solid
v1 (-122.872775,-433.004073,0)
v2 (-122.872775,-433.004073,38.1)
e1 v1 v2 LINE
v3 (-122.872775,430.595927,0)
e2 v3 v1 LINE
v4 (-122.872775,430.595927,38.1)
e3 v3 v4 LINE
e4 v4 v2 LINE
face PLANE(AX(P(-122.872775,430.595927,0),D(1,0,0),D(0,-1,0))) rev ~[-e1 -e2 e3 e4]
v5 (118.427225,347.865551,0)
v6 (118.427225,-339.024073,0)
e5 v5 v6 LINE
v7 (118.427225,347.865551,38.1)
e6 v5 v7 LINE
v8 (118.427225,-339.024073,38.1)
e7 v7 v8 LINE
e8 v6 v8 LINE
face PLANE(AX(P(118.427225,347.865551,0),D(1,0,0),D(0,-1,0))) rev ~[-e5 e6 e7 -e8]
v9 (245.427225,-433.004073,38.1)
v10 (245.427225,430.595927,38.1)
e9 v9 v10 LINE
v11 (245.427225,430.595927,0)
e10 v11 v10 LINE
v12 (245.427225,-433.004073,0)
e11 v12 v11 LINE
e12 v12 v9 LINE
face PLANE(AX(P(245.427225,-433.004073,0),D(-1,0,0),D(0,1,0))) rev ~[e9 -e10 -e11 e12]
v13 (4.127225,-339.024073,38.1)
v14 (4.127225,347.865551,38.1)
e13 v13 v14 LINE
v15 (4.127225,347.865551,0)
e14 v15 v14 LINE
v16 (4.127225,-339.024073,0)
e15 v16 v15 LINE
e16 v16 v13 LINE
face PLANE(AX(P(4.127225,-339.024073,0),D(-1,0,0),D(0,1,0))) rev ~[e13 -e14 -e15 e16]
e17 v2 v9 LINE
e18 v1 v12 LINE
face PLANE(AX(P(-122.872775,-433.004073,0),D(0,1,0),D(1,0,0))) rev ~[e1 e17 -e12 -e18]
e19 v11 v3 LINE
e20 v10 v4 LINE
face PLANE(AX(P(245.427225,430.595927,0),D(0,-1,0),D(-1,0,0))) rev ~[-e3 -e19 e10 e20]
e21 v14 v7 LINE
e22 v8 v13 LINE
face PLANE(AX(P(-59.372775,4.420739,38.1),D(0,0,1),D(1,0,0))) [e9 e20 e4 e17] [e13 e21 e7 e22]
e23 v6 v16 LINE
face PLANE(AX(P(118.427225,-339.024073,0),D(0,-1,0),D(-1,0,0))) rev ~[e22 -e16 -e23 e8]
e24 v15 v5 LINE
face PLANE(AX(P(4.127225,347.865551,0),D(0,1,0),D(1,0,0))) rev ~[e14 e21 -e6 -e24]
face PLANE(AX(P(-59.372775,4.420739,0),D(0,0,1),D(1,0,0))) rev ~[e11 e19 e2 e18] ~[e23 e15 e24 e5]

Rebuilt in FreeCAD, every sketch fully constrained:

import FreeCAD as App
import Part
import Sketcher
from FreeCAD import Vector
Q = App.Units.Quantity

doc = App.newDocument("Part")
body = doc.addObject("PartDesign::Body", "Body")

sketch1 = body.newObject("Sketcher::SketchObject", "Sketch")
sketch1.AttachmentSupport = (doc.getObject("XY_Plane"), [""])
sketch1.MapMode = "FlatFace"
sketch1.addGeometry(Part.LineSegment(Vector(245.427225, 430.595927, 0), Vector(-122.872775, 430.595927, 0)), False)
sketch1.addGeometry(Part.LineSegment(Vector(-122.872775, 430.595927, 0), Vector(-122.872775, -433.004073, 0)), False)
sketch1.addGeometry(Part.LineSegment(Vector(-122.872775, -433.004073, 0), Vector(245.427225, -433.004073, 0)), False)
sketch1.addGeometry(Part.LineSegment(Vector(245.427225, -433.004073, 0), Vector(245.427225, 430.595927, 0)), False)
sketch1.addGeometry(Part.LineSegment(Vector(4.127225, -339.024073, 0), Vector(4.127225, 347.865551, 0)), False)
sketch1.addGeometry(Part.LineSegment(Vector(4.127225, 347.865551, 0), Vector(118.427225, 347.865551, 0)), False)
sketch1.addGeometry(Part.LineSegment(Vector(118.427225, 347.865551, 0), Vector(118.427225, -339.024073, 0)), False)
sketch1.addGeometry(Part.LineSegment(Vector(118.427225, -339.024073, 0), Vector(4.127225, -339.024073, 0)), False)
sketch1.addConstraint(Sketcher.Constraint("Coincident", 0, 2, 1, 1))
sketch1.addConstraint(Sketcher.Constraint("Coincident", 1, 2, 2, 1))
sketch1.addConstraint(Sketcher.Constraint("Coincident", 2, 2, 3, 1))
sketch1.addConstraint(Sketcher.Constraint("Coincident", 3, 2, 0, 1))
sketch1.addConstraint(Sketcher.Constraint("Coincident", 4, 2, 5, 1))
sketch1.addConstraint(Sketcher.Constraint("Coincident", 5, 2, 6, 1))
sketch1.addConstraint(Sketcher.Constraint("Coincident", 6, 2, 7, 1))
sketch1.addConstraint(Sketcher.Constraint("Coincident", 7, 2, 4, 1))
sketch1.addConstraint(Sketcher.Constraint("Horizontal", 0))
sketch1.addConstraint(Sketcher.Constraint("Vertical", 1))
sketch1.addConstraint(Sketcher.Constraint("Horizontal", 2))
sketch1.addConstraint(Sketcher.Constraint("Vertical", 3))
sketch1.addConstraint(Sketcher.Constraint("Vertical", 4))
sketch1.addConstraint(Sketcher.Constraint("Horizontal", 5))
sketch1.addConstraint(Sketcher.Constraint("Vertical", 6))
sketch1.addConstraint(Sketcher.Constraint("Horizontal", 7))
sketch1.addConstraint(Sketcher.Constraint("DistanceY", 1, 2, 1, 1, Q("34 in")))
sketch1.addConstraint(Sketcher.Constraint("DistanceX", 0, 2, 0, 1, Q("14.5 in")))
sketch1.addConstraint(Sketcher.Constraint("DistanceX", 5, 1, 5, 2, Q("4.5 in")))
sketch1.addConstraint(Sketcher.Constraint("DistanceX", 0, 2, 4, 2, Q("5 in")))
sketch1.addConstraint(Sketcher.Constraint("DistanceY", 2, 2, 6, 2, Q("3.7 in")))
sketch1.addConstraint(Sketcher.Constraint("DistanceY", 4, 1, 4, 2, 686.889624))
sketch1.addConstraint(Sketcher.Constraint("DistanceY", -1, 1, 4, 2, 347.865551))
sketch1.addConstraint(Sketcher.Constraint("DistanceX", 0, 2, -1, 1, 122.872775))
pad1 = body.newObject("PartDesign::Pad", "Pad")
pad1.Profile = sketch1
pad1.Length = Q("1.5 in")

doc.recompute()
